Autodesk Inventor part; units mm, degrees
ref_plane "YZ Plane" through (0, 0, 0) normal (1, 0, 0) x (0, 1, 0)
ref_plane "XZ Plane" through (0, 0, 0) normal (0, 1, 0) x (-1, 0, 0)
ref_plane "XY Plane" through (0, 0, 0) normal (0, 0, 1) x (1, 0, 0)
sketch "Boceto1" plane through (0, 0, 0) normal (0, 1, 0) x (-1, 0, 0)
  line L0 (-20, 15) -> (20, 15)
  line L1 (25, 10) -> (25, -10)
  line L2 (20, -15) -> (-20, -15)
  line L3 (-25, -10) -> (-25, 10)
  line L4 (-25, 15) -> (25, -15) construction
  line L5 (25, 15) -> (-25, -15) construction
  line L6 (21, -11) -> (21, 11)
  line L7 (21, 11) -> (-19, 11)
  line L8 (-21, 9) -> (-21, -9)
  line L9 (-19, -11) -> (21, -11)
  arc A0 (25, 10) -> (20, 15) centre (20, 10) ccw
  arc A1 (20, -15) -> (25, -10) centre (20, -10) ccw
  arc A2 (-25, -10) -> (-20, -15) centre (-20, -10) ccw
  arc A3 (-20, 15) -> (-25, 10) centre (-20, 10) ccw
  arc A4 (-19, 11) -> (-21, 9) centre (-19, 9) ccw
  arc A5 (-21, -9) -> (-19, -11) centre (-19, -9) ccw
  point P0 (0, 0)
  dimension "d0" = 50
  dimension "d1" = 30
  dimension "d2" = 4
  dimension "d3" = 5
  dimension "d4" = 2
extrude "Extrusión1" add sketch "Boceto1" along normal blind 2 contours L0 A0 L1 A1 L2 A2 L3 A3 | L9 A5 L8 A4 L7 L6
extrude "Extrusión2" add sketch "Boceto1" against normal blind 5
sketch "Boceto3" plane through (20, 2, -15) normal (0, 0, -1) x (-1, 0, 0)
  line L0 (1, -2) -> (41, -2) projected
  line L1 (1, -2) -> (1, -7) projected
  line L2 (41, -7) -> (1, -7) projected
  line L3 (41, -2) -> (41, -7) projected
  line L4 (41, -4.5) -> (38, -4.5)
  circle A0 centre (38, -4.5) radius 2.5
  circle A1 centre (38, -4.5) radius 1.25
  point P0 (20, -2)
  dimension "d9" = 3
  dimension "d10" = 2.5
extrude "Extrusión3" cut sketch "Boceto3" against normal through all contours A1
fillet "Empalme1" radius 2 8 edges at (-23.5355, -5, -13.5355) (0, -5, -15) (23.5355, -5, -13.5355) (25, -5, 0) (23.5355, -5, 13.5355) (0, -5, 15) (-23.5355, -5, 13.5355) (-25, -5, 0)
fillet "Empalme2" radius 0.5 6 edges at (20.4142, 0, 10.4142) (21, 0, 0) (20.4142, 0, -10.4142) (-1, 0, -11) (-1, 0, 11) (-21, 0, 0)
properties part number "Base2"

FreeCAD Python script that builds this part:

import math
import FreeCAD as App
import Part
import Sketcher


def edges_at(feature, points):
    """Names of the edges that pass closest to the given points."""
    edges = feature.Shape.Edges
    near = lambda p: min(range(len(edges)), key=lambda i: edges[i].distToShape(Part.Vertex(*p))[0])
    return sorted({f"Edge{near(p) + 1}" for p in points})

doc = App.newDocument("Part")
body = doc.addObject("PartDesign::Body", "Body")

sketch1 = doc.addObject("Sketcher::SketchObject", "Sketch")
body.addObject(sketch1)
sketch1.AttachmentSupport = (doc.XZ_Plane, [""])
sketch1.MapMode = "FlatFace"
sketch1.addGeometry([
    Part.LineSegment(App.Vector(-20, 15, 0), App.Vector(20, 15, 0)),
    Part.ArcOfCircle(Part.Circle(App.Vector(20, 10, 0), App.Vector(0, 0, 1), 5), math.radians(0), math.radians(90)),
    Part.LineSegment(App.Vector(25, 10, 0), App.Vector(25, -10, 0)),
    Part.ArcOfCircle(Part.Circle(App.Vector(20, -10, 0), App.Vector(0, 0, 1), 5), math.radians(-90), math.radians(0)),
    Part.LineSegment(App.Vector(20, -15, 0), App.Vector(-20, -15, 0)),
    Part.ArcOfCircle(Part.Circle(App.Vector(-20, -10, 0), App.Vector(0, 0, 1), 5), math.radians(180), math.radians(270)),
    Part.LineSegment(App.Vector(-25, -10, 0), App.Vector(-25, 10, 0)),
    Part.ArcOfCircle(Part.Circle(App.Vector(-20, 10, 0), App.Vector(0, 0, 1), 5), math.radians(90), math.radians(180)),
], False)
sketch1.addConstraint([
    Sketcher.Constraint("Tangent", 0, 2, 1, 2),
    Sketcher.Constraint("Tangent", 1, 1, 2, 1),
    Sketcher.Constraint("Tangent", 2, 2, 3, 2),
    Sketcher.Constraint("Tangent", 3, 1, 4, 1),
    Sketcher.Constraint("Tangent", 4, 2, 5, 2),
    Sketcher.Constraint("Tangent", 5, 1, 6, 1),
    Sketcher.Constraint("Tangent", 6, 2, 7, 2),
    Sketcher.Constraint("Tangent", 7, 1, 0, 1),
    Sketcher.Constraint("Horizontal", 0),
    Sketcher.Constraint("Vertical", 2),
    Sketcher.Constraint("Horizontal", 4),
    Sketcher.Constraint("Vertical", 6),
    Sketcher.Constraint("Equal", 1, 3),
    Sketcher.Constraint("Equal", 3, 5),
    Sketcher.Constraint("Equal", 5, 7),
    Sketcher.Constraint("Symmetric", 1, 3, 5, 3, -1, 1),
    Sketcher.Constraint("Radius", 1, 5.0),
    Sketcher.Constraint("DistanceY", 3, 1, 0, 2, 30.0),
    Sketcher.Constraint("DistanceX", 0, 1, 0, 2, 40.0),
])
pad1 = doc.addObject("PartDesign::Pad", "Pad")
body.addObject(pad1)
pad1.Profile = sketch1
pad1.Length = 2
pad1.Reversed = True

sketch2 = doc.addObject("Sketcher::SketchObject", "Sketch001")
body.addObject(sketch2)
sketch2.AttachmentSupport = (doc.XZ_Plane, [""])
sketch2.MapMode = "FlatFace"
sketch2.addGeometry([
    Part.LineSegment(App.Vector(-20, 15, 0), App.Vector(20, 15, 0)),
    Part.ArcOfCircle(Part.Circle(App.Vector(20, 10, 0), App.Vector(0, 0, 1), 5), math.radians(0), math.radians(90)),
    Part.LineSegment(App.Vector(25, 10, 0), App.Vector(25, -10, 0)),
    Part.ArcOfCircle(Part.Circle(App.Vector(20, -10, 0), App.Vector(0, 0, 1), 5), math.radians(-90), math.radians(0)),
    Part.LineSegment(App.Vector(20, -15, 0), App.Vector(-20, -15, 0)),
    Part.ArcOfCircle(Part.Circle(App.Vector(-20, -10, 0), App.Vector(0, 0, 1), 5), math.radians(180), math.radians(270)),
    Part.LineSegment(App.Vector(-25, -10, 0), App.Vector(-25, 10, 0)),
    Part.ArcOfCircle(Part.Circle(App.Vector(-20, 10, 0), App.Vector(0, 0, 1), 5), math.radians(90), math.radians(180)),
    Part.LineSegment(App.Vector(-21, 11, 0), App.Vector(-21, -11, 0)),
    Part.LineSegment(App.Vector(-21, -11, 0), App.Vector(19, -11, 0)),
    Part.ArcOfCircle(Part.Circle(App.Vector(19, -9, 0), App.Vector(0, 0, 1), 2), math.radians(-90), math.radians(0)),
    Part.LineSegment(App.Vector(21, -9, 0), App.Vector(21, 9, 0)),
    Part.ArcOfCircle(Part.Circle(App.Vector(19, 9, 0), App.Vector(0, 0, 1), 2), math.radians(0), math.radians(90)),
    Part.LineSegment(App.Vector(19, 11, 0), App.Vector(-21, 11, 0)),
], False)
sketch2.addConstraint([
    Sketcher.Constraint("Tangent", 0, 2, 1, 2),
    Sketcher.Constraint("Tangent", 1, 1, 2, 1),
    Sketcher.Constraint("Tangent", 2, 2, 3, 2),
    Sketcher.Constraint("Tangent", 3, 1, 4, 1),
    Sketcher.Constraint("Tangent", 4, 2, 5, 2),
    Sketcher.Constraint("Tangent", 5, 1, 6, 1),
    Sketcher.Constraint("Tangent", 6, 2, 7, 2),
    Sketcher.Constraint("Tangent", 7, 1, 0, 1),
    Sketcher.Constraint("Coincident", 8, 2, 9, 1),
    Sketcher.Constraint("Tangent", 9, 2, 10, 1),
    Sketcher.Constraint("Tangent", 10, 2, 11, 1),
    Sketcher.Constraint("Tangent", 11, 2, 12, 1),
    Sketcher.Constraint("Tangent", 12, 2, 13, 1),
    Sketcher.Constraint("Coincident", 13, 2, 8, 1),
    Sketcher.Constraint("Horizontal", 0),
    Sketcher.Constraint("Vertical", 2),
    Sketcher.Constraint("Horizontal", 4),
    Sketcher.Constraint("Vertical", 6),
    Sketcher.Constraint("Vertical", 8),
    Sketcher.Constraint("Horizontal", 9),
    Sketcher.Constraint("Vertical", 11),
    Sketcher.Constraint("Horizontal", 13),
    Sketcher.Constraint("Equal", 1, 3),
    Sketcher.Constraint("Equal", 3, 5),
    Sketcher.Constraint("Equal", 5, 7),
    Sketcher.Constraint("Equal", 10, 12),
    Sketcher.Constraint("Symmetric", 1, 3, 5, 3, -1, 1),
    Sketcher.Constraint("Equal", 4, 9),
    Sketcher.Constraint("Radius", 1, 5.0),
    Sketcher.Constraint("Radius", 10, 2.0),
    Sketcher.Constraint("DistanceY", 4, 2, 7, 1, 30.0),
    Sketcher.Constraint("DistanceY", 4, 2, 8, 2, 4.0),
    Sketcher.Constraint("DistanceX", 5, 1, 8, 2, 4.0),
    Sketcher.Constraint("DistanceY", 12, 2, 0, 2, 4.0),
    Sketcher.Constraint("DistanceX", 0, 1, 0, 2, 40.0),
])
pad2 = doc.addObject("PartDesign::Pad", "Pad001")
body.addObject(pad2)
pad2.Profile = sketch2
pad2.Length = 5

sketch3 = doc.addObject("Sketcher::SketchObject", "Sketch002")
body.addObject(sketch3)
sketch3.AttachmentSupport = (doc.XY_Plane, [""])
sketch3.MapMode = "FlatFace"
sketch3.AttachmentOffset = App.Placement(App.Vector(0, 0, -15), App.Rotation())
sketch3.addGeometry(Part.Circle(App.Vector(-18, -2.5, 0), App.Vector(0, 0, 1), 1.2), False)
sketch3.addConstraint([
    Sketcher.Constraint("Diameter", 0, 2.5),
    Sketcher.Constraint("DistanceY", 0, 3, -1, 1, 2.5),
    Sketcher.Constraint("DistanceX", 0, 3, -1, 1, 18.0),
])
pocket1 = doc.addObject("PartDesign::Pocket", "Pocket")
body.addObject(pocket1)
pocket1.Profile = sketch3
pocket1.Type = "ThroughAll"
pocket1.Reversed = True
doc.recompute()

fillet = doc.addObject("PartDesign::Fillet", "Fillet")
body.addObject(fillet)
fillet.Base = (pocket1, edges_at(pocket1, [
    (-23.535, -5, -13.536),
    (0, -5, -15),
    (23.535, -5, -13.536),
    (25, -5, 0),
    (23.535, -5, 13.536),
    (0, -5, 15),
    (-23.535, -5, 13.536),
    (-25, -5, 0),
]))
fillet.Radius = 2
doc.recompute()

fillet2 = doc.addObject("PartDesign::Fillet", "Fillet001")
body.addObject(fillet2)
fillet2.Base = (fillet, edges_at(fillet, [
    (20.414, 0, 10.414),
    (21, 0, 0),
    (20.414, 0, -10.414),
    (-1, 0, -11),
    (-1, 0, 11),
    (-21, 0, 0),
]))
fillet2.Radius = 0.5

doc.recompute()
